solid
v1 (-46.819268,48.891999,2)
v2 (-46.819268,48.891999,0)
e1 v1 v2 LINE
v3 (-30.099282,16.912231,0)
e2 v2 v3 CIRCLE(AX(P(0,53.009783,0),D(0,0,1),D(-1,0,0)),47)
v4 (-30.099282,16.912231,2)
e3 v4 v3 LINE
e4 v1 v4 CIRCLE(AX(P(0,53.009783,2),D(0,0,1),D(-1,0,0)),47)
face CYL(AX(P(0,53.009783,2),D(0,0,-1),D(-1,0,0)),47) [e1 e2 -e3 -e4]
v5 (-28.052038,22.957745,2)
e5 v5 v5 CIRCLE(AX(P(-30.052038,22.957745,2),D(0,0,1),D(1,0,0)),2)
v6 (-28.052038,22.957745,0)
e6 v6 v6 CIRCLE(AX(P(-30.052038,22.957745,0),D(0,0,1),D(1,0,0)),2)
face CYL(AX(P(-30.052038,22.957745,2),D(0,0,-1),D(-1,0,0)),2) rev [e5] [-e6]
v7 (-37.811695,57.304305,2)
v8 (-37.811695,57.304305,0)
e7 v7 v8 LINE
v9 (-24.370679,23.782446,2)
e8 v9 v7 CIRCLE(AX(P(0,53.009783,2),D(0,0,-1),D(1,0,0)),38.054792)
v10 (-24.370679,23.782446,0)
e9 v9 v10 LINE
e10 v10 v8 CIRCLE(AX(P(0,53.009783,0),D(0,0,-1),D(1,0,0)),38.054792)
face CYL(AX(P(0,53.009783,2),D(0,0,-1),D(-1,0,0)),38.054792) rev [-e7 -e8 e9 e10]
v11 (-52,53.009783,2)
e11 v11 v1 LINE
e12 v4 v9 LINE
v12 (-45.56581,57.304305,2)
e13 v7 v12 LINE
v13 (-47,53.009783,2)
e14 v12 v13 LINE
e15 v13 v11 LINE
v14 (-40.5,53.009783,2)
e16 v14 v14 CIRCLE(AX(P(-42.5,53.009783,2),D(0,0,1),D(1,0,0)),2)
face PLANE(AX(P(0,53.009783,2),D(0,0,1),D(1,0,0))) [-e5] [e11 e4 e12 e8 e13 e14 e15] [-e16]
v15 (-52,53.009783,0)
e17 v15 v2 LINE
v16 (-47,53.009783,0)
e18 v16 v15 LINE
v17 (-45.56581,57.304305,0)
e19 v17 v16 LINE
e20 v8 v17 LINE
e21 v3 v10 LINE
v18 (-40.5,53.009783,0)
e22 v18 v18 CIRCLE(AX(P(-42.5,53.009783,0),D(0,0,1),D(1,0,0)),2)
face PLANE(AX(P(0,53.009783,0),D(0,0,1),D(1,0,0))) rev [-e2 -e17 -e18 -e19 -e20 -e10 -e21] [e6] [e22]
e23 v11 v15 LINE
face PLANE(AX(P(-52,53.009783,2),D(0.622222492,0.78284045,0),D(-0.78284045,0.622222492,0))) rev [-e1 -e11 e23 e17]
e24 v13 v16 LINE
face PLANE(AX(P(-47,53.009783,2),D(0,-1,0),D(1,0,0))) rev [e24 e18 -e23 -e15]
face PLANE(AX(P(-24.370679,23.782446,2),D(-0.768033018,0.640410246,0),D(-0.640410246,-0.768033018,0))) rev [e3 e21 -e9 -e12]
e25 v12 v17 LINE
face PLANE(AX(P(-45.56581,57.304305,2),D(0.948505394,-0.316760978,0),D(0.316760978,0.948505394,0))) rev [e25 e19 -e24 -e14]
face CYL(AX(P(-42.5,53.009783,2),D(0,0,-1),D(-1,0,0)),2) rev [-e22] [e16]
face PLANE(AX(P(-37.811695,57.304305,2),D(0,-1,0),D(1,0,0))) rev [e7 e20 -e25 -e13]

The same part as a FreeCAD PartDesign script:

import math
import FreeCAD as App
import Part
import Sketcher
from FreeCAD import Vector
Q = App.Units.Quantity

doc = App.newDocument("Part")
body = doc.addObject("PartDesign::Body", "Body")

sketch1 = body.newObject("Sketcher::SketchObject", "Sketch")
sketch1.AttachmentSupport = (doc.getObject("XY_Plane"), [""])
sketch1.MapMode = "FlatFace"
sketch1.addGeometry(Part.LineSegment(Vector(-30.1, 16.9, 0), Vector(-24.4, 23.8, 0)), False)
sketch1.addGeometry(Part.ArcOfCircle(Part.Circle(Vector(0, 53, 0), Vector(0, 0, 1), 38.1), math.radians(174), math.radians(230)), False)
sketch1.addGeometry(Part.LineSegment(Vector(-37.8, 57.3, 0), Vector(-45.6, 57.3, 0)), False)
sketch1.addGeometry(Part.LineSegment(Vector(-45.6, 57.3, 0), Vector(-47, 53, 0)), False)
sketch1.addGeometry(Part.LineSegment(Vector(-47, 53, 0), Vector(-52, 53, 0)), False)
sketch1.addGeometry(Part.LineSegment(Vector(-52, 53, 0), Vector(-46.8, 48.9, 0)), False)
sketch1.addGeometry(Part.ArcOfCircle(Part.Circle(Vector(0, 53, 0), Vector(0, 0, 1), 47), math.radians(-175), math.radians(-130)), False)
sketch1.addGeometry(Part.Circle(Vector(-30.1, 23, 0), Vector(0, 0, 1), 2), False)
sketch1.addGeometry(Part.Circle(Vector(-42.5, 53, 0), Vector(0, 0, 1), 2), False)
sketch1.addConstraint(Sketcher.Constraint("Coincident", 0, 2, 1, 2))
sketch1.addConstraint(Sketcher.Constraint("Coincident", 1, 1, 2, 1))
sketch1.addConstraint(Sketcher.Constraint("Coincident", 2, 2, 3, 1))
sketch1.addConstraint(Sketcher.Constraint("Coincident", 3, 2, 4, 1))
sketch1.addConstraint(Sketcher.Constraint("Coincident", 4, 2, 5, 1))
sketch1.addConstraint(Sketcher.Constraint("Coincident", 5, 2, 6, 1))
sketch1.addConstraint(Sketcher.Constraint("Coincident", 6, 2, 0, 1))
sketch1.addConstraint(Sketcher.Constraint("Horizontal", 2))
sketch1.addConstraint(Sketcher.Constraint("Horizontal", 4))
sketch1.addConstraint(Sketcher.Constraint("Coincident", 6, 3, 1, 3))
sketch1.addConstraint(Sketcher.Constraint("Equal", 7, 8))
sketch1.addConstraint(Sketcher.Constraint("PointOnObject", 1, 3, -2))
sketch1.addConstraint(Sketcher.Constraint("Horizontal", 6, 3, 8, 3))
sketch1.addConstraint(Sketcher.Constraint("Horizontal", 8, 3, 3, 2))
sketch1.addConstraint(Sketcher.Constraint("Diameter", 7, Q("4 mm")))
sketch1.addConstraint(Sketcher.Constraint("Radius", 6, Q("47 mm")))
sketch1.addConstraint(Sketcher.Constraint("DistanceX", 4, 2, 4, 1, Q("5 mm")))
sketch1.addConstraint(Sketcher.Constraint("DistanceX", 3, 2, -1, 1, Q("47 mm")))
sketch1.addConstraint(Sketcher.Constraint("DistanceX", 8, 3, -1, 1, Q("42.5 mm")))
sketch1.addConstraint(Sketcher.Constraint("DistanceY", -1, 1, 5, 2, Q("48.891999 mm")))
sketch1.addConstraint(Sketcher.Constraint("Radius", 1, Q("38.054792 mm")))
sketch1.addConstraint(Sketcher.Constraint("DistanceY", 7, 3, 0, 2, Q("0.824701 mm")))
sketch1.addConstraint(Sketcher.Constraint("DistanceX", 2, 2, 2, 1, Q("7.754115 mm")))
sketch1.addConstraint(Sketcher.Constraint("DistanceX", 7, 3, -1, 1, Q("30.052038 mm")))
sketch1.addConstraint(Sketcher.Constraint("DistanceX", 0, 2, -1, 1, Q("24.370679 mm")))
sketch1.addConstraint(Sketcher.Constraint("DistanceX", 2, 2, -1, 1, Q("45.56581 mm")))
sketch1.addConstraint(Sketcher.Constraint("DistanceX", 6, 2, -1, 1, Q("30.099282 mm")))
sketch1.addConstraint(Sketcher.Constraint("DistanceY", -1, 1, 6, 2, Q("16.912231 mm")))
pad1 = body.newObject("PartDesign::Pad", "Pad")
pad1.Profile = sketch1
pad1.Length = 2

doc.recompute()
